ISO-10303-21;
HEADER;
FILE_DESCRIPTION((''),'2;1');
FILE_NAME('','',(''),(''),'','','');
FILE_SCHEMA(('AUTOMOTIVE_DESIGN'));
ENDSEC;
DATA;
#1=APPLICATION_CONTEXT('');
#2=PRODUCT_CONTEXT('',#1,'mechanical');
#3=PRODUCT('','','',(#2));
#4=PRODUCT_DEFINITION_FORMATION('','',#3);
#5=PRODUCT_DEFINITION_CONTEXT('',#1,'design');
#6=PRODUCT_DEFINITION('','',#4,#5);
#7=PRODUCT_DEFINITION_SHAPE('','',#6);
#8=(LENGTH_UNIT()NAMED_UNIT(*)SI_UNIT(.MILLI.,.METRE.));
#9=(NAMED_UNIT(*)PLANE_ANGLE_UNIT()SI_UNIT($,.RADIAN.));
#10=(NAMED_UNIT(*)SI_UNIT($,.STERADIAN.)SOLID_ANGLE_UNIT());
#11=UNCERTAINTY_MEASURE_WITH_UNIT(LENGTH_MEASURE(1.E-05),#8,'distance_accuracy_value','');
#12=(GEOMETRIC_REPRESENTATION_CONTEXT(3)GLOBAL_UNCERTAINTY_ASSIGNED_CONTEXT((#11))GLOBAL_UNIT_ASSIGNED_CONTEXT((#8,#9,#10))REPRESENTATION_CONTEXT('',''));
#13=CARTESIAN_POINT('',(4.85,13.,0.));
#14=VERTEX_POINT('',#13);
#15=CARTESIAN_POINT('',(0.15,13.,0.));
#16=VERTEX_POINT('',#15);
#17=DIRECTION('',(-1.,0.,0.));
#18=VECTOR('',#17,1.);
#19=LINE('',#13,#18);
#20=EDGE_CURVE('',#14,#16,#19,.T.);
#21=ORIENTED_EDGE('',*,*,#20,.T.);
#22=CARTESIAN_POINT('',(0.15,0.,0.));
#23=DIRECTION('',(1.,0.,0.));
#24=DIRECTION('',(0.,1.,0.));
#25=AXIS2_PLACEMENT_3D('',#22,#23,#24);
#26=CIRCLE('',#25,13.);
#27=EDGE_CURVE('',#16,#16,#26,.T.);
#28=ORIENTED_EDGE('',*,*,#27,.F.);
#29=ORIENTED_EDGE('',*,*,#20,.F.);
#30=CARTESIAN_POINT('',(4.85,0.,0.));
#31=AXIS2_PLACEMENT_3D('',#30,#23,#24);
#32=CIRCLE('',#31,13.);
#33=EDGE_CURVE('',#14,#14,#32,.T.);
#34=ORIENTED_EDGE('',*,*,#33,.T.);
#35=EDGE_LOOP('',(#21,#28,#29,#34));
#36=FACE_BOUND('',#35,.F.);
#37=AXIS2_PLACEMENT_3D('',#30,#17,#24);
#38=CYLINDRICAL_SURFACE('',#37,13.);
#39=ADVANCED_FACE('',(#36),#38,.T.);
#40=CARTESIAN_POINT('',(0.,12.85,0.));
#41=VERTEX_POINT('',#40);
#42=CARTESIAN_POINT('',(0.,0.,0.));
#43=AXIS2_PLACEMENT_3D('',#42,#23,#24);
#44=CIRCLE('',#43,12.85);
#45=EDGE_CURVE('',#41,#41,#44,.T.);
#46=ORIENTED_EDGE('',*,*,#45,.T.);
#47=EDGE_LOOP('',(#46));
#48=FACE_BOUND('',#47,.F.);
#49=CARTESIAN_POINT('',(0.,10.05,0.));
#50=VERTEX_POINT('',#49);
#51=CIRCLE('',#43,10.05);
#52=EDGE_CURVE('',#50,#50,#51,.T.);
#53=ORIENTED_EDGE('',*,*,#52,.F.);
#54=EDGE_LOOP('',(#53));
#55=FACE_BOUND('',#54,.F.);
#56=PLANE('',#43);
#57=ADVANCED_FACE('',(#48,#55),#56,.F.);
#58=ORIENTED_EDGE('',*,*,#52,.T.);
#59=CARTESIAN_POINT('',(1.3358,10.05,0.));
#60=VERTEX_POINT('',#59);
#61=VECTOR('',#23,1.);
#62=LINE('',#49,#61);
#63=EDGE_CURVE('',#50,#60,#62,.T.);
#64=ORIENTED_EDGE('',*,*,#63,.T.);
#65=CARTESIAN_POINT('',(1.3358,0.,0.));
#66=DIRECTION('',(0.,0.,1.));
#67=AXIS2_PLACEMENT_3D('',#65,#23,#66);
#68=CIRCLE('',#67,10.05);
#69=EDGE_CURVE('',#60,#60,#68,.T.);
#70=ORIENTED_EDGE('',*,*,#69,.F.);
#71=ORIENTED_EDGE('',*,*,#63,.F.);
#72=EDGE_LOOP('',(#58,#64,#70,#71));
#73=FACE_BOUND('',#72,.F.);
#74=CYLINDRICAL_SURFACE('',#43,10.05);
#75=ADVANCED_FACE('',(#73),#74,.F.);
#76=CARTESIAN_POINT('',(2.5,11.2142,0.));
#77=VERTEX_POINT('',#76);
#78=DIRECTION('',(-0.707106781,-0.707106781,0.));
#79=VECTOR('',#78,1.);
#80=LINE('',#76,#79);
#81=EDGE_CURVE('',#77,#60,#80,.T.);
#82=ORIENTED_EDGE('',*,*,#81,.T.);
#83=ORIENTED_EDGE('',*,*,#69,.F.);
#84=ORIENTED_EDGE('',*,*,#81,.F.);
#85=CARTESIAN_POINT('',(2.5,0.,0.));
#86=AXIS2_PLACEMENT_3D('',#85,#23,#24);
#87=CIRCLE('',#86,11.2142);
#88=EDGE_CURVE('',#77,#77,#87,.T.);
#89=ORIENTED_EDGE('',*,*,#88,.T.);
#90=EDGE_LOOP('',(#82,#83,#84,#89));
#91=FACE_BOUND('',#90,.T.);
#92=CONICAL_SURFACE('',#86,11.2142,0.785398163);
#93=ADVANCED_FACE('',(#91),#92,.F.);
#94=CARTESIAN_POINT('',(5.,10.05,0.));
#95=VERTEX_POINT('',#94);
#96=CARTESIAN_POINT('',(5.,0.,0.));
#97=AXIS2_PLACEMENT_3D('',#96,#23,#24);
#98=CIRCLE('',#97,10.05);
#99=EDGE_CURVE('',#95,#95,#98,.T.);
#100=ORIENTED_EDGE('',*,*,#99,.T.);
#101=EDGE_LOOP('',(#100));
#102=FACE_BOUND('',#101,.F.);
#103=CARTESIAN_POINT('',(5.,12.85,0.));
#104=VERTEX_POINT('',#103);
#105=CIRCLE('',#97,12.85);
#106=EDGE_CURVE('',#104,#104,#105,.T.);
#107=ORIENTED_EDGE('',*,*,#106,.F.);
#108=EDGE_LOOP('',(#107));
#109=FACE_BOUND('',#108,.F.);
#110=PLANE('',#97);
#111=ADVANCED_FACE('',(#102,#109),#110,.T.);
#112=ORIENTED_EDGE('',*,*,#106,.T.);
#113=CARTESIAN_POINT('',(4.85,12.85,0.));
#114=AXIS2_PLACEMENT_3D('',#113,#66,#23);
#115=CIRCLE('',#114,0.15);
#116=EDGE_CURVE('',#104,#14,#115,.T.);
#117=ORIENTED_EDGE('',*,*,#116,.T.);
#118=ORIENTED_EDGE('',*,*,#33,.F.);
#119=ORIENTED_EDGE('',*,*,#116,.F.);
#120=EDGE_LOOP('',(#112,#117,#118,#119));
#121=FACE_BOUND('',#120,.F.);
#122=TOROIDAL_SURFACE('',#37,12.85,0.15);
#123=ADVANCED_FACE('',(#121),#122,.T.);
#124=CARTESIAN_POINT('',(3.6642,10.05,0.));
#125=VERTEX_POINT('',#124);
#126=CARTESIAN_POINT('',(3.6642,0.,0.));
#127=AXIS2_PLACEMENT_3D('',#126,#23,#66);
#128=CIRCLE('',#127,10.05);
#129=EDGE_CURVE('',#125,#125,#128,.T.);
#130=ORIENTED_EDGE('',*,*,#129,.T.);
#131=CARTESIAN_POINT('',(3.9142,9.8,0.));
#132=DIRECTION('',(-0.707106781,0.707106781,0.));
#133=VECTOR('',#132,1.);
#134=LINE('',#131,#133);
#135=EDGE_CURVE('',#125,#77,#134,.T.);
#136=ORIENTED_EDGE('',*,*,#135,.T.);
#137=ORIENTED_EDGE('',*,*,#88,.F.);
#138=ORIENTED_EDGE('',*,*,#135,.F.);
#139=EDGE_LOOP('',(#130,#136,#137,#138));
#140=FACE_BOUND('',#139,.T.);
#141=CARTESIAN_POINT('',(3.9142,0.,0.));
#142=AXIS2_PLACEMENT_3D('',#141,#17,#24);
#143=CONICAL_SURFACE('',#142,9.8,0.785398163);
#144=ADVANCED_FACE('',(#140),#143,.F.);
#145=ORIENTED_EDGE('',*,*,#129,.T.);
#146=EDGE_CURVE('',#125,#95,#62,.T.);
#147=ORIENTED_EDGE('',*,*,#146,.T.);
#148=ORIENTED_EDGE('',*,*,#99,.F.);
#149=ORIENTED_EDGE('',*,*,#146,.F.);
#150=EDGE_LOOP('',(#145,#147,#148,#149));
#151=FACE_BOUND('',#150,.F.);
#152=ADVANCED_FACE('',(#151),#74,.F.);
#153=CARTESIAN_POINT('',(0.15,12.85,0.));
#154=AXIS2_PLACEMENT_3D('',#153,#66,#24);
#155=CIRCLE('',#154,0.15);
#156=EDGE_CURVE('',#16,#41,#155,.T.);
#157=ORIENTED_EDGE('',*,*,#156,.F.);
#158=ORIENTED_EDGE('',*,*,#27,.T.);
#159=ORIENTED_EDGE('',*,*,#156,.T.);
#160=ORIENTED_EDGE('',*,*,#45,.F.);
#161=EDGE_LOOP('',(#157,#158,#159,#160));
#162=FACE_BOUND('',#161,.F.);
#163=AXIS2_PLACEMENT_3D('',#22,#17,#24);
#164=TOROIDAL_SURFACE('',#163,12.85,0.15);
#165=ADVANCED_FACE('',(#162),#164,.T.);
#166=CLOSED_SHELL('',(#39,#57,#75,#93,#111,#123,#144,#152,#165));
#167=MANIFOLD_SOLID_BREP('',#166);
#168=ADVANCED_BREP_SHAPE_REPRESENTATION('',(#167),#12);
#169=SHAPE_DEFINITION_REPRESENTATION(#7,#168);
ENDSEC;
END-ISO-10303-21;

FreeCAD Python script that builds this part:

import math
import FreeCAD as App
import Part
import Sketcher

doc = App.newDocument("Part")
body = doc.addObject("PartDesign::Body", "Body")

# Sketch on XY plane
sketch1 = body.newObject("Sketcher::SketchObject", "Sketch")
sketch1.AttachmentSupport = (doc.getObject("XY_Plane"), [""])
sketch1.MapMode = "FlatFace"
sketch1.addGeometry(Part.LineSegment(App.Vector(0, 12.85, 0), App.Vector(0, 10.05, 0)), False)
sketch1.addGeometry(Part.LineSegment(App.Vector(0, 10.05, 0), App.Vector(5, 10.05, 0)), False)
sketch1.addGeometry(Part.LineSegment(App.Vector(5, 10.05, 0), App.Vector(5, 12.85, 0)), False)
sketch1.addGeometry(Part.ArcOfCircle(Part.Circle(App.Vector(4.85, 12.85, 0), App.Vector(0, 0, 1), 0.15), math.radians(0), math.radians(90)), False)
sketch1.addGeometry(Part.LineSegment(App.Vector(4.85, 13, 0), App.Vector(0.15, 13, 0)), False)
sketch1.addGeometry(Part.ArcOfCircle(Part.Circle(App.Vector(0.15, 12.85, 0), App.Vector(0, 0, 1), 0.15), math.radians(90), math.radians(180)), False)
sketch1.addConstraint(Sketcher.Constraint("Coincident", 0, 2, 1, 1))
sketch1.addConstraint(Sketcher.Constraint("Coincident", 1, 2, 2, 1))
sketch1.addConstraint(Sketcher.Constraint("Tangent", 2, 2, 3, 1))
sketch1.addConstraint(Sketcher.Constraint("Tangent", 3, 2, 4, 1))
sketch1.addConstraint(Sketcher.Constraint("Tangent", 4, 2, 5, 1))
sketch1.addConstraint(Sketcher.Constraint("Tangent", 5, 2, 0, 1))
sketch1.addConstraint(Sketcher.Constraint("Vertical", 0))
sketch1.addConstraint(Sketcher.Constraint("Horizontal", 1))
sketch1.addConstraint(Sketcher.Constraint("Vertical", 2))
sketch1.addConstraint(Sketcher.Constraint("Horizontal", 4))
sketch1.addConstraint(Sketcher.Constraint("Equal", 3, 5))
sketch1.addConstraint(Sketcher.Constraint("PointOnObject", 0, 2, -2))
sketch1.addConstraint(Sketcher.Constraint("DistanceX", 1, 1, 1, 2, 5.0))
sketch1.addConstraint(Sketcher.Constraint("Radius", 3, 0.15))
sketch1.addConstraint(Sketcher.Constraint("DistanceY", 0, 2, 0, 1, 2.8))
sketch1.addConstraint(Sketcher.Constraint("DistanceY", -1, 1, 3, 2, 13.0))
revolution = body.newObject("PartDesign::Revolution", "Revolution")
revolution.Profile = sketch1
revolution.ReferenceAxis = (sketch1, ["H_Axis"])
revolution.Angle = 360

# Sketch on XY plane
sketch2 = body.newObject("Sketcher::SketchObject", "Sketch001")
sketch2.AttachmentSupport = (doc.getObject("XY_Plane"), [""])
sketch2.MapMode = "FlatFace"
sketch2.addGeometry(Part.LineSegment(App.Vector(2.5, 11.2, 0), App.Vector(1.1, 9.8, 0)), False)
sketch2.addGeometry(Part.LineSegment(App.Vector(1.1, 9.8, 0), App.Vector(2.5, 8.4, 0)), False)
sketch2.addGeometry(Part.LineSegment(App.Vector(2.5, 8.4, 0), App.Vector(3.9, 9.8, 0)), False)
sketch2.addGeometry(Part.LineSegment(App.Vector(3.9, 9.8, 0), App.Vector(2.5, 11.2, 0)), False)
sketch2.addConstraint(Sketcher.Constraint("Coincident", 0, 2, 1, 1))
sketch2.addConstraint(Sketcher.Constraint("Coincident", 1, 2, 2, 1))
sketch2.addConstraint(Sketcher.Constraint("Coincident", 2, 2, 3, 1))
sketch2.addConstraint(Sketcher.Constraint("Coincident", 3, 2, 0, 1))
sketch2.addConstraint(Sketcher.Constraint("Perpendicular", 0, 1))
sketch2.addConstraint(Sketcher.Constraint("Perpendicular", 1, 2))
sketch2.addConstraint(Sketcher.Constraint("Perpendicular", 2, 3))
sketch2.addConstraint(Sketcher.Constraint("Horizontal", 0, 2, 2, 2))
sketch2.addConstraint(Sketcher.Constraint("Vertical", 1, 2, 3, 2))
sketch2.addConstraint(Sketcher.Constraint("Distance", 0, 2.0))
sketch2.addConstraint(Sketcher.Constraint("DistanceY", -1, 1, 0, 2, 9.8))
sketch2.addConstraint(Sketcher.Constraint("DistanceX", -1, 1, 1, 2, 2.5))
groove = body.newObject("PartDesign::Groove", "Groove")
groove.Profile = sketch2
groove.ReferenceAxis = (sketch2, ["H_Axis"])
groove.Angle = 360

doc.recompute()
